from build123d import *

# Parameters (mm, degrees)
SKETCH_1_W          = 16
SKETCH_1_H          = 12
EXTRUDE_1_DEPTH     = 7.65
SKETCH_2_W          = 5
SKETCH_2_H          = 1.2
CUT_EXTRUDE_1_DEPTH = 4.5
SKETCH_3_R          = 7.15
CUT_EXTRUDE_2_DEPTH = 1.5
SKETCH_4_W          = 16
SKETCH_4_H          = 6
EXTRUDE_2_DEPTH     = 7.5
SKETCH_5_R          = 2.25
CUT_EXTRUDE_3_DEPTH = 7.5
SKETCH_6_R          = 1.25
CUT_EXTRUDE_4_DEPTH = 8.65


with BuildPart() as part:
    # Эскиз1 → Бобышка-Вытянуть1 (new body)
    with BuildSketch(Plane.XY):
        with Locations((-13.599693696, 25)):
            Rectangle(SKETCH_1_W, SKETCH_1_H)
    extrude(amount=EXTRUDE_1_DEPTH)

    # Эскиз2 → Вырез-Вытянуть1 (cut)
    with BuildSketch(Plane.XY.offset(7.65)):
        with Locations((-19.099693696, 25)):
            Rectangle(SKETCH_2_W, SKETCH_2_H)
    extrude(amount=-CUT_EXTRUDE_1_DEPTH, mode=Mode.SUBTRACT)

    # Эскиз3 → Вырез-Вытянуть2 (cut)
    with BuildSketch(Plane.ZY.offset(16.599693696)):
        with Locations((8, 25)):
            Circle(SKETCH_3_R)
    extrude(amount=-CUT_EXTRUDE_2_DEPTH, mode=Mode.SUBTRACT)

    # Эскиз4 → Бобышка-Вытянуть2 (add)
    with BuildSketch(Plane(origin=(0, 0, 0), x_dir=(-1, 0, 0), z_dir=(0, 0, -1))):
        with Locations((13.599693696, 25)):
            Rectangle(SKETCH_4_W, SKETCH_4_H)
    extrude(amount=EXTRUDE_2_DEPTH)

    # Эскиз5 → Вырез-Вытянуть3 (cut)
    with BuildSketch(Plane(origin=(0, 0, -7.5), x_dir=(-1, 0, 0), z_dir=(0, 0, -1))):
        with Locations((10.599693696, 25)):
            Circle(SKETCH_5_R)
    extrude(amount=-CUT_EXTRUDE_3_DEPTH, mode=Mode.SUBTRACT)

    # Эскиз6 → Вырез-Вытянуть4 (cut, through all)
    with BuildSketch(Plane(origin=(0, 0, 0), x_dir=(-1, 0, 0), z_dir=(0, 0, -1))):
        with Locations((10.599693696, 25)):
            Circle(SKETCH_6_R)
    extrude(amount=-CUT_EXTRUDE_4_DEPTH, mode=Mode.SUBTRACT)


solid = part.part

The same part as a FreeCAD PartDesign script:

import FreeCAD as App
import Part
import Sketcher

V = App.Vector
Q = App.Units.Quantity


def add_polygon(sketch, points):
    """Adds a closed chain of lines whose ends are joined by coincident constraints."""
    first, n = sketch.GeometryCount, len(points)
    for a, b in zip(points, points[1:] + points[:1]):
        sketch.addGeometry(Part.LineSegment(App.Vector(*a, 0), App.Vector(*b, 0)), False)
    for i in range(n):
        sketch.addConstraint(Sketcher.Constraint("Coincident", first + i, 2, first + (i + 1) % n, 1))

doc = App.newDocument("Part")
body = doc.addObject("PartDesign::Body", "Body")

# Sketch on XY plane
sketch1 = doc.addObject("Sketcher::SketchObject", "Sketch")
body.addObject(sketch1)
sketch1.AttachmentSupport = (doc.XY_Plane, [""])
sketch1.MapMode = "FlatFace"
add_polygon(sketch1, [(-22, 31), (-22, 19), (-6, 19), (-6, 31)])  # lines 0-3
sketch1.addConstraint([
    Sketcher.Constraint("Vertical", 0),
    Sketcher.Constraint("Horizontal", 1),
    Sketcher.Constraint("Vertical", 2),
    Sketcher.Constraint("Horizontal", 3),
    Sketcher.Constraint("DistanceX", 1, 1, 1, 2, Q("16 mm")),
    Sketcher.Constraint("DistanceY", 0, 2, 0, 1, Q("12 mm")),
    Sketcher.Constraint("DistanceY", -1, 1, 0, 2, Q("19 mm")),
    Sketcher.Constraint("DistanceX", 0, 2, -1, 1, Q("21.599694 mm")),
])
pad1 = doc.addObject("PartDesign::Pad", "Pad")
body.addObject(pad1)
pad1.Profile = sketch1
pad1.Length = 7.65

# Sketch on XY plane
sketch2 = doc.addObject("Sketcher::SketchObject", "Sketch001")
body.addObject(sketch2)
sketch2.AttachmentSupport = (doc.XY_Plane, [""])
sketch2.MapMode = "FlatFace"
sketch2.AttachmentOffset = App.Placement(V(0, 0, 7.65), App.Rotation())
add_polygon(sketch2, [(-21.6, 25.6), (-21.6, 24.4), (-16.6, 24.4), (-16.6, 25.6)])  # lines 0-3
sketch2.addConstraint([
    Sketcher.Constraint("Vertical", 0),
    Sketcher.Constraint("Horizontal", 1),
    Sketcher.Constraint("Vertical", 2),
    Sketcher.Constraint("Horizontal", 3),
    Sketcher.Constraint("DistanceX", 1, 1, 1, 2, Q("5 mm")),
    Sketcher.Constraint("DistanceY", 0, 2, 0, 1, Q("1.2 mm")),
    Sketcher.Constraint("DistanceY", -1, 1, 0, 2, Q("24.4 mm")),
    Sketcher.Constraint("DistanceX", 0, 2, -1, 1, Q("21.599694 mm")),
])
pocket1 = doc.addObject("PartDesign::Pocket", "Pocket")
body.addObject(pocket1)
pocket1.Profile = sketch2
pocket1.Length = 4.5

# Sketch on YZ plane
sketch3 = doc.addObject("Sketcher::SketchObject", "Sketch002")
body.addObject(sketch3)
sketch3.AttachmentSupport = (doc.YZ_Plane, [""])
sketch3.MapMode = "FlatFace"
sketch3.AttachmentOffset = App.Placement(V(0, 0, -16.599694), App.Rotation())
sketch3.addGeometry(Part.Circle(V(25, 8, 0), V(0, 0, 1), 7), False)
sketch3.addConstraint([
    Sketcher.Constraint("Diameter", 0, Q("14.3 mm")),
    Sketcher.Constraint("DistanceX", -1, 1, 0, 3, Q("25 mm")),
    Sketcher.Constraint("DistanceY", -1, 1, 0, 3, Q("8 mm")),
])
pocket2 = doc.addObject("PartDesign::Pocket", "Pocket001")
body.addObject(pocket2)
pocket2.Profile = sketch3
pocket2.Length = 1.5
pocket2.Reversed = True

# Sketch on XY plane
sketch4 = doc.addObject("Sketcher::SketchObject", "Sketch003")
body.addObject(sketch4)
sketch4.AttachmentSupport = (doc.XY_Plane, [""])
sketch4.MapMode = "FlatFace"
add_polygon(sketch4, [(-6, 28), (-6, 22), (-22, 22), (-22, 28)])  # lines 0-3
sketch4.addConstraint([
    Sketcher.Constraint("Vertical", 0),
    Sketcher.Constraint("Horizontal", 1),
    Sketcher.Constraint("Vertical", 2),
    Sketcher.Constraint("Horizontal", 3),
    Sketcher.Constraint("DistanceX", 1, 2, 1, 1, Q("16 mm")),
    Sketcher.Constraint("DistanceY", 0, 2, 0, 1, Q("6 mm")),
    Sketcher.Constraint("DistanceY", -1, 1, 0, 2, Q("22 mm")),
    Sketcher.Constraint("DistanceX", 0, 2, -1, 1, Q("5.599694 mm")),
])
pad2 = doc.addObject("PartDesign::Pad", "Pad001")
body.addObject(pad2)
pad2.Profile = sketch4
pad2.Length = 7.5
pad2.Reversed = True

# Sketch on XY plane
sketch5 = doc.addObject("Sketcher::SketchObject", "Sketch004")
body.addObject(sketch5)
sketch5.AttachmentSupport = (doc.XY_Plane, [""])
sketch5.MapMode = "FlatFace"
sketch5.AttachmentOffset = App.Placement(V(0, 0, -7.5), App.Rotation())
sketch5.addGeometry(Part.Circle(V(-10.6, 25, 0), V(0, 0, 1), 2.2), False)
sketch5.addConstraint([
    Sketcher.Constraint("Diameter", 0, Q("4.5 mm")),
    Sketcher.Constraint("DistanceY", -1, 1, 0, 3, Q("25 mm")),
    Sketcher.Constraint("DistanceX", 0, 3, -1, 1, Q("10.599694 mm")),
])
pocket3 = doc.addObject("PartDesign::Pocket", "Pocket002")
body.addObject(pocket3)
pocket3.Profile = sketch5
pocket3.Length = 7.5
pocket3.Reversed = True

# Sketch on XY plane
sketch6 = doc.addObject("Sketcher::SketchObject", "Sketch005")
body.addObject(sketch6)
sketch6.AttachmentSupport = (doc.XY_Plane, [""])
sketch6.MapMode = "FlatFace"
sketch6.addGeometry(Part.Circle(V(-10.6, 25, 0), V(0, 0, 1), 1.2), False)
sketch6.addConstraint([
    Sketcher.Constraint("Diameter", 0, Q("2.5 mm")),
    Sketcher.Constraint("DistanceY", -1, 1, 0, 3, Q("25 mm")),
    Sketcher.Constraint("DistanceX", 0, 3, -1, 1, Q("10.599694 mm")),
])
pocket4 = doc.addObject("PartDesign::Pocket", "Pocket003")
body.addObject(pocket4)
pocket4.Profile = sketch6
pocket4.Type = "ThroughAll"
pocket4.Reversed = True

doc.recompute()
